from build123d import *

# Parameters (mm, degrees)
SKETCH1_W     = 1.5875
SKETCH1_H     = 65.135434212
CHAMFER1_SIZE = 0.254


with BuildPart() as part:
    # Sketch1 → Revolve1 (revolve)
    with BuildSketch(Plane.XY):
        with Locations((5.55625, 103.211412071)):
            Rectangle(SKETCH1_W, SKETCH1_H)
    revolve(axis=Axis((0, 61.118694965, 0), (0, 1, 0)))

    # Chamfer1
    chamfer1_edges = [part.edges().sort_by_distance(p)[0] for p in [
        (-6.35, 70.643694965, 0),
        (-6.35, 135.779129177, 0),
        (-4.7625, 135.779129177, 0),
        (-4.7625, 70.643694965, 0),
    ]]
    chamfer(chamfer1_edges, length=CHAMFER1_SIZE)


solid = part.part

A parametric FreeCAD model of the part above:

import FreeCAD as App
import Part
import Sketcher
Q = App.Units.Quantity


def edges_at(feature, points):
    """Names of the edges that pass closest to the given points."""
    edges = feature.Shape.Edges
    near = lambda p: min(range(len(edges)), key=lambda i: edges[i].distToShape(Part.Vertex(*p))[0])
    return sorted({f"Edge{near(p) + 1}" for p in points})


def add_polygon(sketch, points):
    """Adds a closed chain of lines whose ends are joined by coincident constraints."""
    first, n = sketch.GeometryCount, len(points)
    for a, b in zip(points, points[1:] + points[:1]):
        sketch.addGeometry(Part.LineSegment(App.Vector(*a, 0), App.Vector(*b, 0)), False)
    for i in range(n):
        sketch.addConstraint(Sketcher.Constraint("Coincident", first + i, 2, first + (i + 1) % n, 1))

doc = App.newDocument("Part")
body = doc.addObject("PartDesign::Body", "Body")

# Sketch on XY plane
sketch1 = body.newObject("Sketcher::SketchObject", "Sketch")
sketch1.AttachmentSupport = (doc.getObject("XY_Plane"), [""])
sketch1.MapMode = "FlatFace"
add_polygon(sketch1, [(4.7625, 135.779129), (4.7625, 70.643695), (6.35, 70.643695), (6.35, 135.779129)])  # lines 0-3
sketch1.addConstraint(Sketcher.Constraint("Vertical", 0))
sketch1.addConstraint(Sketcher.Constraint("Horizontal", 1))
sketch1.addConstraint(Sketcher.Constraint("Vertical", 2))
sketch1.addConstraint(Sketcher.Constraint("Horizontal", 3))
sketch1.addConstraint(Sketcher.Constraint("DistanceX", 1, 1, 1, 2, Q("0.0625 in")))
sketch1.addConstraint(Sketcher.Constraint("DistanceX", -1, 1, 1, 2, Q("0.25 in")))
sketch1.addConstraint(Sketcher.Constraint("DistanceY", 0, 2, 0, 1, 65.135434))
sketch1.addConstraint(Sketcher.Constraint("DistanceY", -1, 1, 2, 2, 135.779129))
revolution = body.newObject("PartDesign::Revolution", "Revolution")
revolution.Profile = sketch1
revolution.ReferenceAxis = (sketch1, ["V_Axis"])
revolution.Angle = 360
doc.recompute()

chamfer = body.newObject("PartDesign::Chamfer", "Chamfer")
chamfer.Base = (revolution, edges_at(revolution, [
    (-6.35, 70.644, 0),
    (-6.35, 135.779, 0),
    (-4.763, 135.779, 0),
    (-4.763, 70.644, 0),
]))
chamfer.Size = Q("0.01 in")

doc.recompute()
